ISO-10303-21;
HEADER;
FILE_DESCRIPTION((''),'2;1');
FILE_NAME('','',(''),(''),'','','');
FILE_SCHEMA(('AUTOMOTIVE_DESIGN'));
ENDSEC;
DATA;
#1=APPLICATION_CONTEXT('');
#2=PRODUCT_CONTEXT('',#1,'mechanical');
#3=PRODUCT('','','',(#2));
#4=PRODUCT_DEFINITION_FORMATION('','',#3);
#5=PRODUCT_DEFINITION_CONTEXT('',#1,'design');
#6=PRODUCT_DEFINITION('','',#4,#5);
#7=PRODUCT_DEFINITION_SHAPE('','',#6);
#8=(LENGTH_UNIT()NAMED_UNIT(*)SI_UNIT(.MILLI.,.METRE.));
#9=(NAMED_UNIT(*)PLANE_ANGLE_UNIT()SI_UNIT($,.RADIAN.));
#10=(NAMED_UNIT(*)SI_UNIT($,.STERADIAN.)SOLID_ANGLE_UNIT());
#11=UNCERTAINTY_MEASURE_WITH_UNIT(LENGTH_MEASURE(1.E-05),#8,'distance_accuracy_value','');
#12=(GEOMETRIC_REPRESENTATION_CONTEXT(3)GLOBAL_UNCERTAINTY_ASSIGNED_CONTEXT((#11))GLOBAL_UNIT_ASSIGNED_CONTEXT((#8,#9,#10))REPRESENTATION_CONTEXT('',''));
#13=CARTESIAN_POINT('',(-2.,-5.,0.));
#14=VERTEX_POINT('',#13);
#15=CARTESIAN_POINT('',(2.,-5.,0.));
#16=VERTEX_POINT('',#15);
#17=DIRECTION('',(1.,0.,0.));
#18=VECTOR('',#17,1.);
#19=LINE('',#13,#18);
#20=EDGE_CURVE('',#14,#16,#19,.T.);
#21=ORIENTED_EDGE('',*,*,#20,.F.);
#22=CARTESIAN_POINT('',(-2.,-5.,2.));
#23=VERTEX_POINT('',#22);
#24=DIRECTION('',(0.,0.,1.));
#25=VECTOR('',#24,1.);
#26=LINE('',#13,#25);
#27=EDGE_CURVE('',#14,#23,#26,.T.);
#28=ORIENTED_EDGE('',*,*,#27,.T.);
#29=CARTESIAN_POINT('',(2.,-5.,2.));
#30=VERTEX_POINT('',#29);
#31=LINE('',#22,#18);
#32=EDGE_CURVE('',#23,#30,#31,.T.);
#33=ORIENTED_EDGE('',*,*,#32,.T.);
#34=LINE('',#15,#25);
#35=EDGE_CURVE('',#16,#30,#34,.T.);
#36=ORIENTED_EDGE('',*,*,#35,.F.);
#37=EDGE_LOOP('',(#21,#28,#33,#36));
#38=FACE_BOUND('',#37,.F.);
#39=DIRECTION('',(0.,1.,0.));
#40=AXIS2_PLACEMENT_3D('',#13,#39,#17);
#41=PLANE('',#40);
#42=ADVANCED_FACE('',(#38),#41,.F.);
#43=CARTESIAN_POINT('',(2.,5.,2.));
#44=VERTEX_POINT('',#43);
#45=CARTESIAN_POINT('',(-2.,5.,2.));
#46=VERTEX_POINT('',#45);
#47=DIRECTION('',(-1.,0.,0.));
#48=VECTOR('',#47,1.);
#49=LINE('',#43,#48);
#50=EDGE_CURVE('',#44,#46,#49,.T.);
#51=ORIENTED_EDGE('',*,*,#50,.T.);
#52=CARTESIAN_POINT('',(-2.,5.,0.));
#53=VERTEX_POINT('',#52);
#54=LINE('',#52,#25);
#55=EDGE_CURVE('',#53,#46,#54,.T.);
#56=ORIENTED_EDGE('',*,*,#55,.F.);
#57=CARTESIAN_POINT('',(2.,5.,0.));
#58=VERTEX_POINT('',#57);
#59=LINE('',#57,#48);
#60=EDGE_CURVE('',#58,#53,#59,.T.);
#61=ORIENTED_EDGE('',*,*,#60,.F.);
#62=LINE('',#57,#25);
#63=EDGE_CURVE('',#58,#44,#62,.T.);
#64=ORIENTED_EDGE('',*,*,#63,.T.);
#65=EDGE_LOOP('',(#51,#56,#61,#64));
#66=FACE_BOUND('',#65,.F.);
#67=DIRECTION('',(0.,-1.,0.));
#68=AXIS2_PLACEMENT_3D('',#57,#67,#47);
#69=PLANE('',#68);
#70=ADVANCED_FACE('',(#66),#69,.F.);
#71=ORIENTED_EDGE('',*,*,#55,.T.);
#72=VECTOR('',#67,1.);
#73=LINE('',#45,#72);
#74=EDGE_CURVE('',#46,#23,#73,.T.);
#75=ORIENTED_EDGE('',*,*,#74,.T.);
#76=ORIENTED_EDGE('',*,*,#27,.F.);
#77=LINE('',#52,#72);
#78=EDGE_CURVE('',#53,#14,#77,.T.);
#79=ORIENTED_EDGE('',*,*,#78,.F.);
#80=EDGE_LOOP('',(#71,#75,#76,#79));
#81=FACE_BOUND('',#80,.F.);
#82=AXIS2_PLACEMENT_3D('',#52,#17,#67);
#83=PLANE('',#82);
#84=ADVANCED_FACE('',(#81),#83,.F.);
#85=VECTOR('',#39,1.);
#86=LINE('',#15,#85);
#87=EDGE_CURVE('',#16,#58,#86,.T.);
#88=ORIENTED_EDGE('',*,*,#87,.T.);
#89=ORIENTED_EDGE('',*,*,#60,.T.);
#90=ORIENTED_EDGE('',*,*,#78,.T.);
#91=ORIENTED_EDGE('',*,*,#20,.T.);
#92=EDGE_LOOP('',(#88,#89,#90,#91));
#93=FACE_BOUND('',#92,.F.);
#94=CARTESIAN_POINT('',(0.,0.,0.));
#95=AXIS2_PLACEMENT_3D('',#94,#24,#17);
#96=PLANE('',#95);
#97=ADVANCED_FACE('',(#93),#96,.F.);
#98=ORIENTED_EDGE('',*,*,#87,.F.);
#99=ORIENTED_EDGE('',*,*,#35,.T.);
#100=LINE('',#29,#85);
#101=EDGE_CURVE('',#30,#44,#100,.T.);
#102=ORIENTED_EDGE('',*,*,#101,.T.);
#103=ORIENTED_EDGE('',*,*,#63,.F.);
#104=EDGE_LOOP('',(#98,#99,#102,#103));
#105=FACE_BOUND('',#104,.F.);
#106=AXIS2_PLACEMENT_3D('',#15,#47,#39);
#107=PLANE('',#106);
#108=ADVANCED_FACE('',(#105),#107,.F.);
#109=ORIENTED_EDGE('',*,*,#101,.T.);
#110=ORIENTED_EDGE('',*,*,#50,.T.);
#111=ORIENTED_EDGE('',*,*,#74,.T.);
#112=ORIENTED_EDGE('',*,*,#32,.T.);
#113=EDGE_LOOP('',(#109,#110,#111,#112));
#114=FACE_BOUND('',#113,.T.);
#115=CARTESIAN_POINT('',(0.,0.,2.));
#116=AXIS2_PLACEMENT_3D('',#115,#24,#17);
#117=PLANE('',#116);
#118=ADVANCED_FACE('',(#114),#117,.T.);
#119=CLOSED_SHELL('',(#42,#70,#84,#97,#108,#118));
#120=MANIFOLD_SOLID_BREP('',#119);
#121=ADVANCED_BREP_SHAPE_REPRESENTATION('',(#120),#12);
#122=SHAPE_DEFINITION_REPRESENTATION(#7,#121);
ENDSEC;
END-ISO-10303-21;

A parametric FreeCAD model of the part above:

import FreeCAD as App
import Part
import Sketcher


def add_polygon(sketch, points):
    """Adds a closed chain of lines whose ends are joined by coincident constraints."""
    first, n = sketch.GeometryCount, len(points)
    for a, b in zip(points, points[1:] + points[:1]):
        sketch.addGeometry(Part.LineSegment(App.Vector(*a, 0), App.Vector(*b, 0)), False)
    for i in range(n):
        sketch.addConstraint(Sketcher.Constraint("Coincident", first + i, 2, first + (i + 1) % n, 1))

doc = App.newDocument("Part")
body = doc.addObject("PartDesign::Body", "Body")

# Sketch on XY plane
sketch1 = body.newObject("Sketcher::SketchObject", "Sketch")
sketch1.AttachmentSupport = (doc.getObject("XY_Plane"), [""])
sketch1.MapMode = "FlatFace"
add_polygon(sketch1, [(-2, 5), (-2, -5), (2, -5), (2, 5)])  # lines 0-3
sketch1.addConstraint([
    Sketcher.Constraint("Vertical", 0),
    Sketcher.Constraint("Horizontal", 1),
    Sketcher.Constraint("Vertical", 2),
    Sketcher.Constraint("Horizontal", 3),
    Sketcher.Constraint("Symmetric", 0, 2, 2, 2, -1, 1),
    Sketcher.Constraint("DistanceX", 1, 1, 1, 2, 4.0),
    Sketcher.Constraint("DistanceY", 0, 2, 0, 1, 10.0),
])
pad1 = body.newObject("PartDesign::Pad", "Pad")
pad1.Profile = sketch1
pad1.Length = 2

doc.recompute()
